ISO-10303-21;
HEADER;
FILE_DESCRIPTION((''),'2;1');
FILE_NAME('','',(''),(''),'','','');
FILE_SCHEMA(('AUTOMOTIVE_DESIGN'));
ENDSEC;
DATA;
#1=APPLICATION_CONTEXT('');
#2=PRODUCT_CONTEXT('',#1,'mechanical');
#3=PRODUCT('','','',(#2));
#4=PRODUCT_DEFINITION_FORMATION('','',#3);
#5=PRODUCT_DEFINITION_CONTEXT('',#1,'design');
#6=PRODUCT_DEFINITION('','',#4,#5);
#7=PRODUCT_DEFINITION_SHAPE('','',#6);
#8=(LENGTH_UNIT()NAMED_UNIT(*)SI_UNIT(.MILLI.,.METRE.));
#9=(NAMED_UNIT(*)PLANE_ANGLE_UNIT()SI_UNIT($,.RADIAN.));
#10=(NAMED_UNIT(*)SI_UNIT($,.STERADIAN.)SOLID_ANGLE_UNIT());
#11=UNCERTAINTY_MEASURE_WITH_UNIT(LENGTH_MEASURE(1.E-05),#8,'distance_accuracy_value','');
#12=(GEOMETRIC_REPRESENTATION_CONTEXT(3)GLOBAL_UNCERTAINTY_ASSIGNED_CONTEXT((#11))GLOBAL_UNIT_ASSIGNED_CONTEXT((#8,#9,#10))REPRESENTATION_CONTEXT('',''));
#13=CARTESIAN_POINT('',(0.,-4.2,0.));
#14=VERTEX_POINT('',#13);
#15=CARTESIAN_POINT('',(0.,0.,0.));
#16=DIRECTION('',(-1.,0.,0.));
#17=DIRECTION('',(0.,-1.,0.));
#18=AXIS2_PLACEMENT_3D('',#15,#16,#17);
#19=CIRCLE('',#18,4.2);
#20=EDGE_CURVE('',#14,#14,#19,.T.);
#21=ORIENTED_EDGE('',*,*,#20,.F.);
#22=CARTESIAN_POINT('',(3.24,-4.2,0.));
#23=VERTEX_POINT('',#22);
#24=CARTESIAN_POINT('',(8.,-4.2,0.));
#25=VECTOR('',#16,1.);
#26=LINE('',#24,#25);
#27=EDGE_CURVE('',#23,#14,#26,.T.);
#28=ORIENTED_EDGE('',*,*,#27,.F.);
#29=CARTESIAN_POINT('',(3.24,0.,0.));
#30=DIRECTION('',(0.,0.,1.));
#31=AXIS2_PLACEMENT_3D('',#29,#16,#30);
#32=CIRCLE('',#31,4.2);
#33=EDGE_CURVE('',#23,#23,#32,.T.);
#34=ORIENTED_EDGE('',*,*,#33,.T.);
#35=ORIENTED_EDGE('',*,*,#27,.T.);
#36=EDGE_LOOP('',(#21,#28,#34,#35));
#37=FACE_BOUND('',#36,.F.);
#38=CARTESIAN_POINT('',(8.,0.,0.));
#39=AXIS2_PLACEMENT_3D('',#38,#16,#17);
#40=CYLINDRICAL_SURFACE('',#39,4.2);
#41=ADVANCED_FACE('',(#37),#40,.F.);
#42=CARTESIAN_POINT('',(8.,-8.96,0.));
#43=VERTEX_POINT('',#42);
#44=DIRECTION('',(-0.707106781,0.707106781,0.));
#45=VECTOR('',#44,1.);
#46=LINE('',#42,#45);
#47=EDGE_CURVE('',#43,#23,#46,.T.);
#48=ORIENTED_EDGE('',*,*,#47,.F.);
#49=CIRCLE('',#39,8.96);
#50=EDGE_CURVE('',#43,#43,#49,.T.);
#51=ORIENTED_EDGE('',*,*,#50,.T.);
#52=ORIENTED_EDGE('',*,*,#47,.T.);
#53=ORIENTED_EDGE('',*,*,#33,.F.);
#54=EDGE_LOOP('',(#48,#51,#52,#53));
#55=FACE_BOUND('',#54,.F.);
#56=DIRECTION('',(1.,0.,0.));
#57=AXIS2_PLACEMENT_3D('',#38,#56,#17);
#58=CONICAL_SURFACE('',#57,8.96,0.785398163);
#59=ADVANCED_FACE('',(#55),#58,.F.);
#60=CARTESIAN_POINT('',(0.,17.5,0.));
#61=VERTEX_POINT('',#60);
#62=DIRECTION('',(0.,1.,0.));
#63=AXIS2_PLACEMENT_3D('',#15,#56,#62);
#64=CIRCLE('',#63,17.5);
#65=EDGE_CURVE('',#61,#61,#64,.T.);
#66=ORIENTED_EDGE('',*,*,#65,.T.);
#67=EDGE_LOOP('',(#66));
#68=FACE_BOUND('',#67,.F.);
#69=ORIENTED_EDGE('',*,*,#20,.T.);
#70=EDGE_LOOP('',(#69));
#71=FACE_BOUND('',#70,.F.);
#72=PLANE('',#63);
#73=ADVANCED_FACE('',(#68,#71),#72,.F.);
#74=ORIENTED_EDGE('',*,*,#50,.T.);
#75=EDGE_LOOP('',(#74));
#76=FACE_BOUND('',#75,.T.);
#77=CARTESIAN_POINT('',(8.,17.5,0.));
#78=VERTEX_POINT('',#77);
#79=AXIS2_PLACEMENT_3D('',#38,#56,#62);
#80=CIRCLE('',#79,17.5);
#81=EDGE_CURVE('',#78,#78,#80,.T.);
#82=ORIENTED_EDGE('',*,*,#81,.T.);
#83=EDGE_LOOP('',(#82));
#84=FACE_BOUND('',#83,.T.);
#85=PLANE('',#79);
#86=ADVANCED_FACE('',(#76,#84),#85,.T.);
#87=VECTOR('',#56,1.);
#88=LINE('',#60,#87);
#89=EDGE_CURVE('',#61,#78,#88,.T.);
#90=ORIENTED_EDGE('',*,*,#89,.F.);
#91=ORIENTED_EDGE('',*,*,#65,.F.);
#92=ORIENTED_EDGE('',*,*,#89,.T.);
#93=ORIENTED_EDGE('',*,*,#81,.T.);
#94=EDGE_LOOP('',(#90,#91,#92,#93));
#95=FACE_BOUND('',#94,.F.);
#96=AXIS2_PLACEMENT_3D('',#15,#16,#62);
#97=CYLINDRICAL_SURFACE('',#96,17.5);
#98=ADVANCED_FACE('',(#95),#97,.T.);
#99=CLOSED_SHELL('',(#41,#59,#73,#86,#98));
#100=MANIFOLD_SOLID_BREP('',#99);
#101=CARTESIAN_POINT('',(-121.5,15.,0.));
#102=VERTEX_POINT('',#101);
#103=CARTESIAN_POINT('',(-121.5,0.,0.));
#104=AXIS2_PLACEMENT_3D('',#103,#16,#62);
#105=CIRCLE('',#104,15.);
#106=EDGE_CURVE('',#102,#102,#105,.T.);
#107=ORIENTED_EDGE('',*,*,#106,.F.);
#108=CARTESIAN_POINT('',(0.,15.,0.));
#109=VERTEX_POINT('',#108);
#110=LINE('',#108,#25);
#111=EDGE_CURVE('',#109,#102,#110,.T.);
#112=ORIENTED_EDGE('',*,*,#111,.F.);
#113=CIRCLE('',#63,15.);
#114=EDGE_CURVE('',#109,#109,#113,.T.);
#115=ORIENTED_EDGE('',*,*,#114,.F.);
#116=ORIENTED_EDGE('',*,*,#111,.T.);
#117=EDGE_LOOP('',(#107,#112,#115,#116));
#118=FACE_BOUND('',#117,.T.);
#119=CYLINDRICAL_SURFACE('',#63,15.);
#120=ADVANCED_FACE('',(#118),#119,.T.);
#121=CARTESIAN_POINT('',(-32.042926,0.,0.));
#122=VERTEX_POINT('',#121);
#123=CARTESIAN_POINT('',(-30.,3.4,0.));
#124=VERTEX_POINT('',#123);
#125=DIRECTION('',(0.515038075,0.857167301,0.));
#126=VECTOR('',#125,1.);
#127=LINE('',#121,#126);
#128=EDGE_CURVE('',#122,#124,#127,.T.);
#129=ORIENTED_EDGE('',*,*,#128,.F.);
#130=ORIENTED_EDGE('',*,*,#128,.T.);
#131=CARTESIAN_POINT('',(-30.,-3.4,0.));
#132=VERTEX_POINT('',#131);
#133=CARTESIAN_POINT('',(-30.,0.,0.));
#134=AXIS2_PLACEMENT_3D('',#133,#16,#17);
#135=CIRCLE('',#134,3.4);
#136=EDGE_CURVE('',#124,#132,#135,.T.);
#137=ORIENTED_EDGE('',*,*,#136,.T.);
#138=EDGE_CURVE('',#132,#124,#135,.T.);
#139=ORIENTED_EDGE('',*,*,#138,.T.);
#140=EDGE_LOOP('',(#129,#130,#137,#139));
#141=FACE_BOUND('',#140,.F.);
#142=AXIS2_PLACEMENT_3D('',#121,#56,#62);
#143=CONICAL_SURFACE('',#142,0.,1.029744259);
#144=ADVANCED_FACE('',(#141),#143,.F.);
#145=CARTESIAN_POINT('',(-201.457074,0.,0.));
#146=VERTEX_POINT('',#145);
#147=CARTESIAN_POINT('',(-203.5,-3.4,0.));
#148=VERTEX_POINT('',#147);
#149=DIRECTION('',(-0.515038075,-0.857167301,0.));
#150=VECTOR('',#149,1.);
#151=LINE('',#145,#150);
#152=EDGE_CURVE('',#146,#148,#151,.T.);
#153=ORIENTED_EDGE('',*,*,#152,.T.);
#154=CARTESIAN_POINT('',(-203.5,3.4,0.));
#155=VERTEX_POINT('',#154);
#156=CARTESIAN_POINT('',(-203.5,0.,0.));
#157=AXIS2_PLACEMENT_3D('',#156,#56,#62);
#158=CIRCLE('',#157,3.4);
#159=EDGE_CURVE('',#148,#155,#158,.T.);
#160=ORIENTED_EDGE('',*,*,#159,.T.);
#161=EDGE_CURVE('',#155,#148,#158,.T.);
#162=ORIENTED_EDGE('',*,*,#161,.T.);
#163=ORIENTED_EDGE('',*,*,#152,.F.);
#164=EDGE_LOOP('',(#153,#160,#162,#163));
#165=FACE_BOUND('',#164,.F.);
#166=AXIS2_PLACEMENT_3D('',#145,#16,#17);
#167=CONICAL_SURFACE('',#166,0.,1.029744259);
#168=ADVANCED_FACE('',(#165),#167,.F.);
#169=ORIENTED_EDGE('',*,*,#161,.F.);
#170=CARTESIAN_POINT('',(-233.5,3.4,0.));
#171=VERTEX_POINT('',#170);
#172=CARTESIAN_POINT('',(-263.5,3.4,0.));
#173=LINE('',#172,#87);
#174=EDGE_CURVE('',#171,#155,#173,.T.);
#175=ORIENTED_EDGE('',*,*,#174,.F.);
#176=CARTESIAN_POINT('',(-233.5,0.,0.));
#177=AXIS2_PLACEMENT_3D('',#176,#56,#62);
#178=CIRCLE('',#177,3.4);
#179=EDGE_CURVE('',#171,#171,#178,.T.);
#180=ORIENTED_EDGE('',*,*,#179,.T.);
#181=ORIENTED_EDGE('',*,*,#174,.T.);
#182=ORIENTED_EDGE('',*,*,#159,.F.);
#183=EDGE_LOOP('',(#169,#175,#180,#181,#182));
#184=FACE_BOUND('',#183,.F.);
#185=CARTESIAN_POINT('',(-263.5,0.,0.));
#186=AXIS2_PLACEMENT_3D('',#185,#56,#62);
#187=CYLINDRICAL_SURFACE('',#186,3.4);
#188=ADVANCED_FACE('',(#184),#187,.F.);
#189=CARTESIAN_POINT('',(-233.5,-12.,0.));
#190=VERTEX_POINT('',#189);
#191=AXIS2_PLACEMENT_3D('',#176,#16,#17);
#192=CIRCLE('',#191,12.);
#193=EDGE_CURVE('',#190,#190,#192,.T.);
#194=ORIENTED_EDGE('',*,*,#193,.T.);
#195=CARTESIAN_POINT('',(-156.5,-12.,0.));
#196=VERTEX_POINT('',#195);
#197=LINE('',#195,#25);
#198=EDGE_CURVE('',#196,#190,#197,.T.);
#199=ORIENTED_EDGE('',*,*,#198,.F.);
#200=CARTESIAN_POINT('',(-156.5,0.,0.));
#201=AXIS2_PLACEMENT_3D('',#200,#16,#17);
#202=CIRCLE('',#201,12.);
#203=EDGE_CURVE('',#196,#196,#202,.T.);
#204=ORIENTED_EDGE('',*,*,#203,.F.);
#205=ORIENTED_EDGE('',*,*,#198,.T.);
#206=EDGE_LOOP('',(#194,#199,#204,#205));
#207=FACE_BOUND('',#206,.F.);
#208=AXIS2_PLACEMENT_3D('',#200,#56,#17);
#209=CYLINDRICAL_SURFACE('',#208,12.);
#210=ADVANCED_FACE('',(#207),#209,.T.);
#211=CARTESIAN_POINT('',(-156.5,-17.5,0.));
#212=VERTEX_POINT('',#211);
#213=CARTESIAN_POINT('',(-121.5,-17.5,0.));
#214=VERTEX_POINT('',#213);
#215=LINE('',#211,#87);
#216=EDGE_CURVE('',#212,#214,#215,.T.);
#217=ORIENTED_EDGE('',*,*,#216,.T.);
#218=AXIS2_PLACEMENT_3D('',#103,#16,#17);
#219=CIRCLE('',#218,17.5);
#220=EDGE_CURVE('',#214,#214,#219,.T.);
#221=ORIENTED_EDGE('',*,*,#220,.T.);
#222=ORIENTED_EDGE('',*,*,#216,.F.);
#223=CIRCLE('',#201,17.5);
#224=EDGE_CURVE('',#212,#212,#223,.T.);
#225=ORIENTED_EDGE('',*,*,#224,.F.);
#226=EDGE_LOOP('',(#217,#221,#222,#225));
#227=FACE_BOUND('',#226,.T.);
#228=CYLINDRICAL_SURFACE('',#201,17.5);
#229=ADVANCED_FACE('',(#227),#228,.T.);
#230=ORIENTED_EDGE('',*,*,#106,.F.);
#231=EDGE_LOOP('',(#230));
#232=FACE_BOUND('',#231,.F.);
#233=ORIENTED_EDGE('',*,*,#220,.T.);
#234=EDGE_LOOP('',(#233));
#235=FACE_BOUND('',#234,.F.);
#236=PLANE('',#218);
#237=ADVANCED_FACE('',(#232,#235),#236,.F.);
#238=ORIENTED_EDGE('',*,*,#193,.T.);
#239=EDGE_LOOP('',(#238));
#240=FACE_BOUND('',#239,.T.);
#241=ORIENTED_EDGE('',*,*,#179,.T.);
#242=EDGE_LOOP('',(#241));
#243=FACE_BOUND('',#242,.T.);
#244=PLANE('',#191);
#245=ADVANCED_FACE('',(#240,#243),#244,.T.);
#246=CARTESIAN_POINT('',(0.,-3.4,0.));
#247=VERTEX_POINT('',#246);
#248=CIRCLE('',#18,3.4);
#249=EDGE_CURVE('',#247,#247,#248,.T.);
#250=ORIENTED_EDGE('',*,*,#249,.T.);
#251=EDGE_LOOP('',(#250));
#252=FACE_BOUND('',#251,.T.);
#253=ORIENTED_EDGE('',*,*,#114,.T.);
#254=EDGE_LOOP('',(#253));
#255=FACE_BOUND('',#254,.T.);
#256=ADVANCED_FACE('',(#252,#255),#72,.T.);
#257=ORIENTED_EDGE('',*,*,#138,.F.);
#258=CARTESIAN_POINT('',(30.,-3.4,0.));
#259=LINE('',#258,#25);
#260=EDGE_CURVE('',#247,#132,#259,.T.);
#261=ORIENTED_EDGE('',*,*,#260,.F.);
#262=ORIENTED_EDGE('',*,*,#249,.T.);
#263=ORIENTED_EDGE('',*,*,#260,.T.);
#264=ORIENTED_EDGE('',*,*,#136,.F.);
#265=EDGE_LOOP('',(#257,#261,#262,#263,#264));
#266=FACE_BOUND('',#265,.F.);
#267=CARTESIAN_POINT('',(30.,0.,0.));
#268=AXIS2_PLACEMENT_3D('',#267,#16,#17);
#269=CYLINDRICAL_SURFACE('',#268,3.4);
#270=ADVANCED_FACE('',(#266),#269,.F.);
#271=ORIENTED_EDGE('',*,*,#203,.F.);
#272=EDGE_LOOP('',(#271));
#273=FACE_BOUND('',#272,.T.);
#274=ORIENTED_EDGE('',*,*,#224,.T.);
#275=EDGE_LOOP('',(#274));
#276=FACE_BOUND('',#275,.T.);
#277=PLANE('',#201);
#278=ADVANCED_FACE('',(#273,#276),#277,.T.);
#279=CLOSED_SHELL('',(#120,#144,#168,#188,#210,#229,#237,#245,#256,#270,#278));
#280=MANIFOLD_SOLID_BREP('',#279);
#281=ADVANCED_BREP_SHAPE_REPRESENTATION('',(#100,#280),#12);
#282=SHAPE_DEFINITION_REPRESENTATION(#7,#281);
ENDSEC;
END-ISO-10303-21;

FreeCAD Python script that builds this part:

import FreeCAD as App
import Part
import Sketcher
from FreeCAD import Vector
Q = App.Units.Quantity

doc = App.newDocument("Part")
body = doc.addObject("PartDesign::Body", "Body")

sketch1 = doc.addObject("Sketcher::SketchObject", "Sketch")
body.addObject(sketch1)
sketch1.AttachmentSupport = (doc.YZ_Plane, [""])
sketch1.MapMode = "FlatFace"
sketch1.addGeometry(Part.Circle(Vector(0, 0, 0), Vector(0, 0, 1), 15), False)
sketch1.addConstraint([
    Sketcher.Constraint("Coincident", 0, 3, -1, 1),
    Sketcher.Constraint("Diameter", 0, Q("30 mm")),
])
pad1 = doc.addObject("PartDesign::Pad", "Pad")
body.addObject(pad1)
pad1.Profile = sketch1
pad1.Length = 156.5
pad1.Reversed = True

sketch2 = doc.addObject("Sketcher::SketchObject", "Sketch001")
body.addObject(sketch2)
sketch2.AttachmentSupport = (doc.YZ_Plane, [""])
sketch2.MapMode = "FlatFace"
sketch2.AttachmentOffset = App.Placement(Vector(0, 0, -156.5), App.Rotation())
sketch2.addGeometry(Part.Circle(Vector(0, 0, 0), Vector(0, 0, 1), 12), False)
sketch2.addConstraint([
    Sketcher.Constraint("Coincident", 0, 3, -1, 1),
    Sketcher.Constraint("Diameter", 0, Q("24 mm")),
])
pad2 = doc.addObject("PartDesign::Pad", "Pad001")
body.addObject(pad2)
pad2.Profile = sketch2
pad2.Length = 77
pad2.Reversed = True

sketch3 = doc.addObject("Sketcher::SketchObject", "Sketch002")
body.addObject(sketch3)
sketch3.AttachmentSupport = (doc.YZ_Plane, [""])
sketch3.MapMode = "FlatFace"
sketch3.AttachmentOffset = App.Placement(Vector(0, 0, -233.5), App.Rotation())
sketch3.addGeometry(Part.Circle(Vector(0, 0, 0), Vector(0, 0, 1), 3.4), False)
sketch3.addConstraint([
    Sketcher.Constraint("Coincident", 0, 3, -1, 1),
    Sketcher.Constraint("Diameter", 0, Q("6.8 mm")),
])
doc.recompute()
hole = doc.addObject("PartDesign::Hole", "Hole")
body.addObject(hole)
hole.Profile = sketch3
hole.ThreadType = "None"
hole.Diameter = 6.8
hole.DepthType = "Dimension"
hole.Depth = 30
hole.DrillPoint = "Angled"
hole.DrillPointAngle = 118
hole.Reversed = True

sketch4 = doc.addObject("Sketcher::SketchObject", "Sketch003")
body.addObject(sketch4)
sketch4.AttachmentSupport = (doc.YZ_Plane, [""])
sketch4.MapMode = "FlatFace"
sketch4.AttachmentOffset = App.Placement(Vector(0, 0, -156.5), App.Rotation())
sketch4.addGeometry([
    Part.Circle(Vector(0, 0, 0), Vector(0, 0, 1), 18),
    Part.Circle(Vector(0, 0, 0), Vector(0, 0, 1), 15),
], False)
sketch4.addConstraint([
    Sketcher.Constraint("Coincident", 0, 3, -1, 1),
    Sketcher.Constraint("Coincident", 1, 3, -1, 1),
    Sketcher.Constraint("Diameter", 0, Q("35 mm")),
    Sketcher.Constraint("Diameter", 1, Q("30 mm")),
])
pad3 = doc.addObject("PartDesign::Pad", "Pad002")
body.addObject(pad3)
pad3.Profile = sketch4
pad3.Length = 35

sketch5 = doc.addObject("Sketcher::SketchObject", "Sketch004")
body.addObject(sketch5)
sketch5.AttachmentSupport = (doc.YZ_Plane, [""])
sketch5.MapMode = "FlatFace"
sketch5.addGeometry(Part.Circle(Vector(0, 0, 0), Vector(0, 0, 1), 3.4), False)
sketch5.addConstraint([
    Sketcher.Constraint("Coincident", 0, 3, -1, 1),
    Sketcher.Constraint("Diameter", 0, Q("6.8 mm")),
])
doc.recompute()
hole2 = doc.addObject("PartDesign::Hole", "Hole001")
body.addObject(hole2)
hole2.Profile = sketch5
hole2.ThreadType = "None"
hole2.Diameter = 6.8
hole2.DepthType = "Dimension"
hole2.Depth = 30
hole2.DrillPoint = "Angled"
hole2.DrillPointAngle = 118
body2 = doc.addObject("PartDesign::Body", "Body001")

sketch6 = doc.addObject("Sketcher::SketchObject", "Sketch005")
body2.addObject(sketch6)
sketch6.AttachmentSupport = (doc.getObject("YZ_Plane001"), [""])
sketch6.MapMode = "FlatFace"
sketch6.addGeometry(Part.Circle(Vector(0, 0, 0), Vector(0, 0, 1), 18), False)
sketch6.addConstraint([
    Sketcher.Constraint("Coincident", 0, 3, -1, 1),
    Sketcher.Constraint("Diameter", 0, Q("35 mm")),
])
pad4 = doc.addObject("PartDesign::Pad", "Pad003")
body2.addObject(pad4)
pad4.Profile = sketch6
pad4.Length = 8

sketch7 = doc.addObject("Sketcher::SketchObject", "Sketch006")
body2.addObject(sketch7)
sketch7.AttachmentSupport = (doc.getObject("YZ_Plane001"), [""])
sketch7.MapMode = "FlatFace"
sketch7.AttachmentOffset = App.Placement(Vector(0, 0, 8), App.Rotation())
sketch7.addGeometry(Part.Circle(Vector(0, 0, 0), Vector(0, 0, 1), 4.2), False)
sketch7.addConstraint([
    Sketcher.Constraint("Coincident", 0, 3, -1, 1),
    Sketcher.Constraint("Diameter", 0, Q("8.4 mm")),
])
doc.recompute()
hole3 = doc.addObject("PartDesign::Hole", "Hole002")
body2.addObject(hole3)
hole3.Profile = sketch7
hole3.ThreadType = "None"
hole3.Diameter = 8.4
hole3.DepthType = "Dimension"
hole3.Depth = 30
hole3.DrillPoint = "Angled"
hole3.DrillPointAngle = 118
hole3.HoleCutType = "Countersink"
hole3.HoleCutDiameter = 17.92
hole3.HoleCutCountersinkAngle = 90

doc.recompute()
